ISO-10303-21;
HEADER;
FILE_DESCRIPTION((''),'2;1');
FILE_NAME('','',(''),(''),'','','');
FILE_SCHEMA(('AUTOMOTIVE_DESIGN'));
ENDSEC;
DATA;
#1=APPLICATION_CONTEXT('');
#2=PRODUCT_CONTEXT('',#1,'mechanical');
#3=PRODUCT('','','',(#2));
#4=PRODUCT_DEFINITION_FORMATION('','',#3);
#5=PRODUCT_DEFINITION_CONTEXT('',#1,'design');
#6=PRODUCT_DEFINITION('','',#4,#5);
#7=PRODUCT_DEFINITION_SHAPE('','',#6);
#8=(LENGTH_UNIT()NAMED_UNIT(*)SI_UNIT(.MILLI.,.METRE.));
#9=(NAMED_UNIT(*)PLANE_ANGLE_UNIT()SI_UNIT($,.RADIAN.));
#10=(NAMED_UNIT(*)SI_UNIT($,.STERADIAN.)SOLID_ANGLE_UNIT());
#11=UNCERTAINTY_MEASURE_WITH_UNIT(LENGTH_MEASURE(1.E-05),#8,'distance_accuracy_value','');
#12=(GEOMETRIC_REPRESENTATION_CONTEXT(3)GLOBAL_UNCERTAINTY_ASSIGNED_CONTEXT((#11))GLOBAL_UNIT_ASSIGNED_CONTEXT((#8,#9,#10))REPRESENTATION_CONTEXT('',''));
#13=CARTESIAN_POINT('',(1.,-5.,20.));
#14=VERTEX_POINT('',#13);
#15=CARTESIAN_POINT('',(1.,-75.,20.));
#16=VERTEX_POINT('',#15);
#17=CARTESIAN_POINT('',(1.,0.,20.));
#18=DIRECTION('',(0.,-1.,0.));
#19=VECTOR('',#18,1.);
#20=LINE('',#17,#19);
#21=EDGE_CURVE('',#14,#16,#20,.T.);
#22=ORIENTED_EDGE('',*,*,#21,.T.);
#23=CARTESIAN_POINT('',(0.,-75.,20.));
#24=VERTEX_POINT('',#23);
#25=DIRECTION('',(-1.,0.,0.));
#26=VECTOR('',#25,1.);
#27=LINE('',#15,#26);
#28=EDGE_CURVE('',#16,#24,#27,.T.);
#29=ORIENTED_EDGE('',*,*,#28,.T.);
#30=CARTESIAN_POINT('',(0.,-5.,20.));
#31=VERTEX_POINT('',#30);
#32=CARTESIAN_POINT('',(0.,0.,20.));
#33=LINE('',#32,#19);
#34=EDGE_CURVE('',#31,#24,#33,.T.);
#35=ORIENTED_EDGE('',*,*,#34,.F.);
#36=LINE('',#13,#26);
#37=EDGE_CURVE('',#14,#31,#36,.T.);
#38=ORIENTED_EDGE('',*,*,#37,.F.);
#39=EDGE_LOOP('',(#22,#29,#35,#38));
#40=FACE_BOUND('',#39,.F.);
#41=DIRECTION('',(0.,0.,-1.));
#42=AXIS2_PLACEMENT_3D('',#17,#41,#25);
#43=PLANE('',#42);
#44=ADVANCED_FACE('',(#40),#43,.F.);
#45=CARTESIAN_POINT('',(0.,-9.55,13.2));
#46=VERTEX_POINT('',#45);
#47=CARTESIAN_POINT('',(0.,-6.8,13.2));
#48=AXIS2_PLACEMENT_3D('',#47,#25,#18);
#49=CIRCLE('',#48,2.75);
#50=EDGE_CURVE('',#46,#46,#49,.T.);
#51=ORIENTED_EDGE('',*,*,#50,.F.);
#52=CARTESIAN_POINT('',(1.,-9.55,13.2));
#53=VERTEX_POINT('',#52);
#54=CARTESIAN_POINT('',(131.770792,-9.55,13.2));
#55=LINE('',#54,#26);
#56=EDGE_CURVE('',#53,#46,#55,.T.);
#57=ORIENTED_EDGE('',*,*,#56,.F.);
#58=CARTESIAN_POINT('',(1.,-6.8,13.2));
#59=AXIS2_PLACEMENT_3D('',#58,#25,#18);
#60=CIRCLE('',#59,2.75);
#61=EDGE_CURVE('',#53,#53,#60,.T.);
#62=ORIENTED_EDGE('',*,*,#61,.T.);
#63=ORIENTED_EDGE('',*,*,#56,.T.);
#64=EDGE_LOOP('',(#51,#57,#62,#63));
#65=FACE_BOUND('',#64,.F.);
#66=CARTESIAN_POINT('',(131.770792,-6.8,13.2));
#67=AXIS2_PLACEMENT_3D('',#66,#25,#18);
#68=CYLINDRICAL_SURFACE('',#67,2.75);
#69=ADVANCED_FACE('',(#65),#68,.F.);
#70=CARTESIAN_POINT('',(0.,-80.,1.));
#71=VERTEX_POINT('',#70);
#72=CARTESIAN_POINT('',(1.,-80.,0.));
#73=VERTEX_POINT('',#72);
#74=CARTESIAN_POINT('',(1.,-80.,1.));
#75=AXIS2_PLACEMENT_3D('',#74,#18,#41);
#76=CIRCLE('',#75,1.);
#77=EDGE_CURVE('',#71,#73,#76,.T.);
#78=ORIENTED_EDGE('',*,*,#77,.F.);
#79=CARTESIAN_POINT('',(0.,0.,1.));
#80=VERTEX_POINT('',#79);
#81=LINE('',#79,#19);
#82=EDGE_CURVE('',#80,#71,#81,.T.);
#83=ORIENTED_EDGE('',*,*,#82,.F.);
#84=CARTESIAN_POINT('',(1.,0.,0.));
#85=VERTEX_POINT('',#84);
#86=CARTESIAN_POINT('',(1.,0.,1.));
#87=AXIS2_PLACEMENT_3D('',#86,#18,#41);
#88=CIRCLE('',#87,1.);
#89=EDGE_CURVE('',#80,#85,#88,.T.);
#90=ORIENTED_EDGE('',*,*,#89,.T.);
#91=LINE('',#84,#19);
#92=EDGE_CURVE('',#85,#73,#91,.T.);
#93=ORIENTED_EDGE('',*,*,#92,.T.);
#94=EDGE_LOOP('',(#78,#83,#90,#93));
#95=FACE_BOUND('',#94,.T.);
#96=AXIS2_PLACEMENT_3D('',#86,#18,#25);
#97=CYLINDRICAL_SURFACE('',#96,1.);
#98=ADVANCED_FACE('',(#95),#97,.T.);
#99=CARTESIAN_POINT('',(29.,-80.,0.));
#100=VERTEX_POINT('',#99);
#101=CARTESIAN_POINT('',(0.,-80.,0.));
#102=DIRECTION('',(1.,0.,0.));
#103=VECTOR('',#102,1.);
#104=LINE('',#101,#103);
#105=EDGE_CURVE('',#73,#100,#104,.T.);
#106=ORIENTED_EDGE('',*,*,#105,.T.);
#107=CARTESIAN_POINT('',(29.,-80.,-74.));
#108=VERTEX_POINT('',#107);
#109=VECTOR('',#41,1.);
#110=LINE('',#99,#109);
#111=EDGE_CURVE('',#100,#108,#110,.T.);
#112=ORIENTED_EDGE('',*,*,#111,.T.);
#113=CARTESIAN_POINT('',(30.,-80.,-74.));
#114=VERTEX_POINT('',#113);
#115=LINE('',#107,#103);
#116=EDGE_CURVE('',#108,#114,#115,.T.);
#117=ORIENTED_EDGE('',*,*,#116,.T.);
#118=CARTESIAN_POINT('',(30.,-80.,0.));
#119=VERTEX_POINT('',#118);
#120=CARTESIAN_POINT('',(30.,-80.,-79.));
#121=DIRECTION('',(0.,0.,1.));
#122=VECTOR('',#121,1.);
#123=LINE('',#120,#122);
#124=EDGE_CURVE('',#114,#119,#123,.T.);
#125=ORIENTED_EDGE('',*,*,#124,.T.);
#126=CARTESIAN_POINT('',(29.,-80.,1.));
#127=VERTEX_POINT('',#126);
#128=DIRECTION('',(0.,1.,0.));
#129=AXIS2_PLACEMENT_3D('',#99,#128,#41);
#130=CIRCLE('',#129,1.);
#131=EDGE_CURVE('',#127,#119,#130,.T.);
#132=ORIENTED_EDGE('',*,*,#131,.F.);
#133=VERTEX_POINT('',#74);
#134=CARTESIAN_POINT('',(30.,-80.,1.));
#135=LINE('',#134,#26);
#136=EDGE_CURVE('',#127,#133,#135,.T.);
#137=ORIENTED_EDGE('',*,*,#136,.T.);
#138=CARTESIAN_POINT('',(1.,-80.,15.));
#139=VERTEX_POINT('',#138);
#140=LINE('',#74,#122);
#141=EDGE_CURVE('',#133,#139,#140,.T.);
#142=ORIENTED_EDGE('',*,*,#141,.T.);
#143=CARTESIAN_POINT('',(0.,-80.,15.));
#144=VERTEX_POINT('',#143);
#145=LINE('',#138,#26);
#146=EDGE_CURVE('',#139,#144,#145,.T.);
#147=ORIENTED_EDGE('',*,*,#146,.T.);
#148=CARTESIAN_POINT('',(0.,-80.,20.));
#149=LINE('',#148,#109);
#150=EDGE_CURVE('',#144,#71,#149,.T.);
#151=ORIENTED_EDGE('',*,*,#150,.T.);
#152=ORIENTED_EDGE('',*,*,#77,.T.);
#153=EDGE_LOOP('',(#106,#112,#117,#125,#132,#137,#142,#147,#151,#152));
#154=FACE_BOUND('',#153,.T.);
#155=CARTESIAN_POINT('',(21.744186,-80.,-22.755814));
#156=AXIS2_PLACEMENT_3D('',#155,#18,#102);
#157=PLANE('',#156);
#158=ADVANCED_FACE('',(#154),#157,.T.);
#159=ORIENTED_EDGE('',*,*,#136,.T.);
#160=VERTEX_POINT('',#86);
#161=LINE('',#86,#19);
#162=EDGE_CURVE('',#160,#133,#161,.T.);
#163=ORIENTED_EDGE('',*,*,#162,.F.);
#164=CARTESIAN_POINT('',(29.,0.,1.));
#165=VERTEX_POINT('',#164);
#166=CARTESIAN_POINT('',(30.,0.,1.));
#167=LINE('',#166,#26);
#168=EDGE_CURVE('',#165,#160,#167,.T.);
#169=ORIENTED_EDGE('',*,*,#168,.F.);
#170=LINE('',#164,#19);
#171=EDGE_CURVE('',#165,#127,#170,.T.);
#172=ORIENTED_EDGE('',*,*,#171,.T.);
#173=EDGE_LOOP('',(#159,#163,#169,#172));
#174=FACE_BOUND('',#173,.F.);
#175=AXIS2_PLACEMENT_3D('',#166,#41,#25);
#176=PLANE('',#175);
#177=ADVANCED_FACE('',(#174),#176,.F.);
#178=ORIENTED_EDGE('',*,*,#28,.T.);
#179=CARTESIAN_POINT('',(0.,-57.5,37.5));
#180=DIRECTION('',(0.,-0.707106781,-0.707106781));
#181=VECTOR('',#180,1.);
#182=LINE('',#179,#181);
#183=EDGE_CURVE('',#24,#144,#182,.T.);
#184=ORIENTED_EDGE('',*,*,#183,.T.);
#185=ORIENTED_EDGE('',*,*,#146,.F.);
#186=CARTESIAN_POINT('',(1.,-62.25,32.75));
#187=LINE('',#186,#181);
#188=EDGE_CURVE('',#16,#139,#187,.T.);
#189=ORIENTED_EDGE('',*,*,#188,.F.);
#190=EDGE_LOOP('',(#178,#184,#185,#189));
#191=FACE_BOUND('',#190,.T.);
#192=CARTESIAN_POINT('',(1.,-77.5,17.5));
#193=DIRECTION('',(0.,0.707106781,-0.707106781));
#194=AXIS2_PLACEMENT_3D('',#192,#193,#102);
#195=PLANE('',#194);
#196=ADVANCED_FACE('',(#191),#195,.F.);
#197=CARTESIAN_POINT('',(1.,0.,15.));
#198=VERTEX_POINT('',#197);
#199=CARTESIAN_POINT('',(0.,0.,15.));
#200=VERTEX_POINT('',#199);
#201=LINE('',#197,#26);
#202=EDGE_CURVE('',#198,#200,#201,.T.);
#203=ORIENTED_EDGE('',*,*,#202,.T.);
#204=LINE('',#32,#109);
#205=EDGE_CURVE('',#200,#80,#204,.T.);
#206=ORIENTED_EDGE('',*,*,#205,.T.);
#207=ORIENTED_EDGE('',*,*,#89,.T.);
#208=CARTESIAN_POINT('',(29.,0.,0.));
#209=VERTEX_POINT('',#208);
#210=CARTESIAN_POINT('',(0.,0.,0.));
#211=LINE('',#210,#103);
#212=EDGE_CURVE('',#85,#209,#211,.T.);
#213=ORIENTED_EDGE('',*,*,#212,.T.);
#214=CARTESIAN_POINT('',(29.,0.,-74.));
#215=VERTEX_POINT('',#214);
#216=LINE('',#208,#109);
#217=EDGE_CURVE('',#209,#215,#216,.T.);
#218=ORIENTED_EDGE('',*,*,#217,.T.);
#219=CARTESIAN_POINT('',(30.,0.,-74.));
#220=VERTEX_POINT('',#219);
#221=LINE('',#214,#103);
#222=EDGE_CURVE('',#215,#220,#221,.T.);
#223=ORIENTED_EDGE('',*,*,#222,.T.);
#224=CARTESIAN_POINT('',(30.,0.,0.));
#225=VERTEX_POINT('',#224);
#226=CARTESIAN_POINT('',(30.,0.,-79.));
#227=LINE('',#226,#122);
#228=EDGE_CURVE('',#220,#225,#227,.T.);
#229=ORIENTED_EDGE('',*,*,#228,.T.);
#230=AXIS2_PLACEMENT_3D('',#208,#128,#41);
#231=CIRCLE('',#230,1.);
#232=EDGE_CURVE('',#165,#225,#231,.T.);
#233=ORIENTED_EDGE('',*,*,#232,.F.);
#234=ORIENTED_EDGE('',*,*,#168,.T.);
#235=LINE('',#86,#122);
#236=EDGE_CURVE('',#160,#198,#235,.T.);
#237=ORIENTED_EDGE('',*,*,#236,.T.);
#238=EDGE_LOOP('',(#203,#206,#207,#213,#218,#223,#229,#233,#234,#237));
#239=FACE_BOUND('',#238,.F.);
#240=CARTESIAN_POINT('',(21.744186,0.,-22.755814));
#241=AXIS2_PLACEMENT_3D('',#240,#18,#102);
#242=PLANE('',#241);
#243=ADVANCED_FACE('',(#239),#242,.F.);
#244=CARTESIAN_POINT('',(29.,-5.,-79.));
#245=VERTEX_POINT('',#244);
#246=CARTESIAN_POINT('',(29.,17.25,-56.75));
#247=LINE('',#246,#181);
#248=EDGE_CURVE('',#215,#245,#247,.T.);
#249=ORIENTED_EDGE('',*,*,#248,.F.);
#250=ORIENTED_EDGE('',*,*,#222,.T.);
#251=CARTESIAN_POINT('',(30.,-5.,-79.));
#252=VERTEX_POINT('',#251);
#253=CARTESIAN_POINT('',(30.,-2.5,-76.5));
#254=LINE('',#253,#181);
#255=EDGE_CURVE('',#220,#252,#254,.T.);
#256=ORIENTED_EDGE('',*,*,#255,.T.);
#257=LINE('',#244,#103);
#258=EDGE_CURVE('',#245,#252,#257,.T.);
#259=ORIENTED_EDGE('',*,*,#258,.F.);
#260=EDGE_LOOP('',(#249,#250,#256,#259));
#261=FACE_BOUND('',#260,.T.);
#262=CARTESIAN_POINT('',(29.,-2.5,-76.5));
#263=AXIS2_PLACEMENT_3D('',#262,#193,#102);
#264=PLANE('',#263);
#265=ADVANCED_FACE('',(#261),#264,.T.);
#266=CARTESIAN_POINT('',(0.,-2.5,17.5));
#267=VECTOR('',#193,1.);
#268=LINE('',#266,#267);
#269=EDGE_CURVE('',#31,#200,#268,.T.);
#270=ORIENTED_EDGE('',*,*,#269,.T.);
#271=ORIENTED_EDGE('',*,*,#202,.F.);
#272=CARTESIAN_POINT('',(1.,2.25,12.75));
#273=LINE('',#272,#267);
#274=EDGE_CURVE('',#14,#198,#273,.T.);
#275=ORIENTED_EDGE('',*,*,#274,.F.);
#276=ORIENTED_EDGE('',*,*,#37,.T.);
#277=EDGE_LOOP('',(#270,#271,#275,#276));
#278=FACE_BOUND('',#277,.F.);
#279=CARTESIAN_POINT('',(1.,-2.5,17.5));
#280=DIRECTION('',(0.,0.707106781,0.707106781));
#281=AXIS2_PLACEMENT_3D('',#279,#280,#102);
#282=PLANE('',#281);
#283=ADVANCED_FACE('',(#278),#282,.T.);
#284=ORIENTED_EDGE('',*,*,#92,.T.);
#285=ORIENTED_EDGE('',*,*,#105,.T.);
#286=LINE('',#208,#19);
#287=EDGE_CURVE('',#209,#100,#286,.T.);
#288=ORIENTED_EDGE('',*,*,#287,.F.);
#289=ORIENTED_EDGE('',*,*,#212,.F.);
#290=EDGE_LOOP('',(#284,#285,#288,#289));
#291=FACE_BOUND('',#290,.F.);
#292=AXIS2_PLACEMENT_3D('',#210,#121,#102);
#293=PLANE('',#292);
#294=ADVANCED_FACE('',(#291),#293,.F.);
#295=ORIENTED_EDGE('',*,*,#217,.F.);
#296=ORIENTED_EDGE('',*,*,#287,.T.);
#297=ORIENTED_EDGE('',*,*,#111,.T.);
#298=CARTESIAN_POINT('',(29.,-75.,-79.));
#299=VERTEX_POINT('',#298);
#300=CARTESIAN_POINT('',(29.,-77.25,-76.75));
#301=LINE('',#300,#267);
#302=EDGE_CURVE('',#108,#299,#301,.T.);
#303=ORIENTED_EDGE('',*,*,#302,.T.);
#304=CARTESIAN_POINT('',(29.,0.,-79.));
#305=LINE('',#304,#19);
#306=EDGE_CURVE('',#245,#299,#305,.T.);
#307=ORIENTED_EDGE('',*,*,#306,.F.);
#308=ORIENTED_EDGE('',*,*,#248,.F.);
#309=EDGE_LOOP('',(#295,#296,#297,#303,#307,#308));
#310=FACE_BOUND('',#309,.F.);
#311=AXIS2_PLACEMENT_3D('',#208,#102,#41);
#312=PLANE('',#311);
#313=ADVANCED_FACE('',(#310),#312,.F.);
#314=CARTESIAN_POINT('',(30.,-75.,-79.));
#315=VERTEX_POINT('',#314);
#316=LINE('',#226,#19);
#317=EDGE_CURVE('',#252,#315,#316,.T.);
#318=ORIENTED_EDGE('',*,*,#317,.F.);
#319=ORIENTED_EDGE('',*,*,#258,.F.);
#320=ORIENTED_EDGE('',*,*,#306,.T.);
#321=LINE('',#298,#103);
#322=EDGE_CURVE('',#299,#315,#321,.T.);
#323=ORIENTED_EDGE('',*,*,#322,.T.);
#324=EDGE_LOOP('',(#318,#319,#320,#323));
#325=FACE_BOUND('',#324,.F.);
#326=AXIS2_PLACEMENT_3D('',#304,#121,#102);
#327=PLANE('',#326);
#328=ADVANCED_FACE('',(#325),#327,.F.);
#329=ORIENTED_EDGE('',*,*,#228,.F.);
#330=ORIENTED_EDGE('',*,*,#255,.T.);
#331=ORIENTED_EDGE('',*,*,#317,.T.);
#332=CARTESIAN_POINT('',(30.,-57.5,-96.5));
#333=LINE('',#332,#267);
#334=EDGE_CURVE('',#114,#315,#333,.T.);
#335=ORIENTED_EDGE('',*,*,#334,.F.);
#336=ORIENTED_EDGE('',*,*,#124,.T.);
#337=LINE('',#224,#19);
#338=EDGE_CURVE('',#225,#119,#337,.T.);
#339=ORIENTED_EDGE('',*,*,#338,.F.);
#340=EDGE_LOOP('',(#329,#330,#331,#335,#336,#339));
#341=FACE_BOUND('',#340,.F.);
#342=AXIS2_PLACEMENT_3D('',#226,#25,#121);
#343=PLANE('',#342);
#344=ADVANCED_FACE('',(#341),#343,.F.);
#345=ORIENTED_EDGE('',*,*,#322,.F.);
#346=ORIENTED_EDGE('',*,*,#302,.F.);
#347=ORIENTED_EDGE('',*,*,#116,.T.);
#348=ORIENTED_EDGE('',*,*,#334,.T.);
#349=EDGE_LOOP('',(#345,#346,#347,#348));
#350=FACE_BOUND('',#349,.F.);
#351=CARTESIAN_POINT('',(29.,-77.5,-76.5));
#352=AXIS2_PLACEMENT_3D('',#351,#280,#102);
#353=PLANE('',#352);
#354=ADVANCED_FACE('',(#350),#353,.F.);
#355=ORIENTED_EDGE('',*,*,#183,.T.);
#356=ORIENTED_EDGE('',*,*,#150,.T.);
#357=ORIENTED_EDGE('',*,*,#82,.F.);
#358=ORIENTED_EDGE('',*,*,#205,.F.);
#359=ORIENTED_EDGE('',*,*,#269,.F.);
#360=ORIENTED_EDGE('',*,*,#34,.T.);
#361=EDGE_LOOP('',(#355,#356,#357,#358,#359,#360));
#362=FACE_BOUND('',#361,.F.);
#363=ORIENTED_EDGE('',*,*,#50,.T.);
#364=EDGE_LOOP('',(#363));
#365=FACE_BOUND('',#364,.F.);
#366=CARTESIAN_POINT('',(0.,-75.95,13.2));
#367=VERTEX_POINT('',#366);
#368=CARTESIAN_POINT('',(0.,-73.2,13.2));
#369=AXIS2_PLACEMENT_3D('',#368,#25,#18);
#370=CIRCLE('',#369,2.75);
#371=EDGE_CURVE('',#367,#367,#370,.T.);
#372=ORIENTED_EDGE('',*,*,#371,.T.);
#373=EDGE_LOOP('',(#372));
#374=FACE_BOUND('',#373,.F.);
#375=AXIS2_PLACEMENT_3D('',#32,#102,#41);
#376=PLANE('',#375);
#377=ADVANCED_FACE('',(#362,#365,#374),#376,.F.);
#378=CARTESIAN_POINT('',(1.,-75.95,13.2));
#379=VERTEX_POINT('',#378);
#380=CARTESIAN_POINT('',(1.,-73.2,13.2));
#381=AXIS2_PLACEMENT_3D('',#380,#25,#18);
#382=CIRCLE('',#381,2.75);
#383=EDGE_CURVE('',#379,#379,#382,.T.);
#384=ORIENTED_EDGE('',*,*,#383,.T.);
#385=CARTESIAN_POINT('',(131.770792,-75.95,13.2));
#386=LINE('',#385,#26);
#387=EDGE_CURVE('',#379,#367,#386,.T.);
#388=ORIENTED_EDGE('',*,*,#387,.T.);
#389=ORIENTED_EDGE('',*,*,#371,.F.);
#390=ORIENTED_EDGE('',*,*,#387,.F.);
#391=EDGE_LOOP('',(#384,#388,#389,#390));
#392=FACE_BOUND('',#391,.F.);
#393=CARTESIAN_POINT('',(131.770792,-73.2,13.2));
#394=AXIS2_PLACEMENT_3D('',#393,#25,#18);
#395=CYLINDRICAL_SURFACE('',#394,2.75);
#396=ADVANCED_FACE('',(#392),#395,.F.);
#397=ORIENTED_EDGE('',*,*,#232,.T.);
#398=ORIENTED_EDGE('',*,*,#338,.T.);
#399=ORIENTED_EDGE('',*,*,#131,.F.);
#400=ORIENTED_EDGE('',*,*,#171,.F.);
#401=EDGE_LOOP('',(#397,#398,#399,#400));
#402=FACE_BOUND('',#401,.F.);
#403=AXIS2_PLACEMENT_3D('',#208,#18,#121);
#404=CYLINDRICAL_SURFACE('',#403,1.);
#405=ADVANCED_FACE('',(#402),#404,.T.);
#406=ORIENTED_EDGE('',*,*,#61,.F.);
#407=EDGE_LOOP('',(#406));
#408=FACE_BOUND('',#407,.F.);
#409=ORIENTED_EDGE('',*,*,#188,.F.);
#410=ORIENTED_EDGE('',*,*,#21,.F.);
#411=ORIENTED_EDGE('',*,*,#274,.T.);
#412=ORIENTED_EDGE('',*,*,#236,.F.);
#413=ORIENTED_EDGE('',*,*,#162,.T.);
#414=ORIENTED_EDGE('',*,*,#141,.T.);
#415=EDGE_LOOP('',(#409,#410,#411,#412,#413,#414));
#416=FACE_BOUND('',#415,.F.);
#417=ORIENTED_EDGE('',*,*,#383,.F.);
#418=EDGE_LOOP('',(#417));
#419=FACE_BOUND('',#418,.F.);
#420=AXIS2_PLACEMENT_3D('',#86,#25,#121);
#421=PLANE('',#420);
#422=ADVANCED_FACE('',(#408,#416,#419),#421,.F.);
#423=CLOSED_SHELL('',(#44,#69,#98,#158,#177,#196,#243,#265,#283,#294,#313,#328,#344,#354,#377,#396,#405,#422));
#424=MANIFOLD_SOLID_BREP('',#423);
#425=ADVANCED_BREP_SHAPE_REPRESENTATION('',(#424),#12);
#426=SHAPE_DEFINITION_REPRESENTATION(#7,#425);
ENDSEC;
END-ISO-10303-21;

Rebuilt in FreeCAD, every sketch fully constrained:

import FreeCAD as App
import Part
import Sketcher


def edges_at(feature, points):
    """Names of the edges that pass closest to the given points."""
    edges = feature.Shape.Edges
    near = lambda p: min(range(len(edges)), key=lambda i: edges[i].distToShape(Part.Vertex(*p))[0])
    return sorted({f"Edge{near(p) + 1}" for p in points})


def add_polygon(sketch, points):
    """Adds a closed chain of lines whose ends are joined by coincident constraints."""
    first, n = sketch.GeometryCount, len(points)
    for a, b in zip(points, points[1:] + points[:1]):
        sketch.addGeometry(Part.LineSegment(App.Vector(*a, 0), App.Vector(*b, 0)), False)
    for i in range(n):
        sketch.addConstraint(Sketcher.Constraint("Coincident", first + i, 2, first + (i + 1) % n, 1))

doc = App.newDocument("Part")
params = doc.addObject("Spreadsheet::Sheet", "Params")
for row, (alias, value) in enumerate([
    ("sketch1_width", "29 mm"),
    ("sketch1_width2", "1 mm"),
    ("sketch1_height", "20 mm"),
    ("sketch1_height2", "79 mm"),
    ("sketch1_height3", "80 mm"),
    ("pad1_length", "80 mm"),
    ("sketch2_diameter", "5.5 mm"),
    ("hole_diameter", "5.5 mm"),
    ("chamfer_size", "5 mm"),
    ("fillet_radius", "1 mm"),
], start=1):
    params.set(f"A{row}", alias)
    params.set(f"B{row}", "=" + value)
    params.setAlias(f"B{row}", alias)

body = doc.addObject("PartDesign::Body", "Body")

# Sketch on XZ plane
sketch1 = body.newObject("Sketcher::SketchObject", "Sketch")
sketch1.AttachmentSupport = (doc.getObject("XZ_Plane"), [""])
sketch1.MapMode = "FlatFace"
add_polygon(sketch1, [(0, 20), (0, 0), (29, 0), (29, -79), (30, -79), (30, 1), (1, 1), (1, 20)])  # lines 0-7
sketch1.addConstraint([
    Sketcher.Constraint("Vertical", 0),
    Sketcher.Constraint("Horizontal", 1),
    Sketcher.Constraint("Vertical", 2),
    Sketcher.Constraint("Horizontal", 3),
    Sketcher.Constraint("Vertical", 4),
    Sketcher.Constraint("Horizontal", 5),
    Sketcher.Constraint("Vertical", 6),
    Sketcher.Constraint("Horizontal", 7),
    Sketcher.Constraint("Coincident", 0, 2, -1, 1),
    Sketcher.Constraint("Equal", 1, 5),
    Sketcher.Constraint("DistanceX", 1, 1, 1, 2, 29.0),
    Sketcher.Constraint("DistanceX", 3, 1, 3, 2, 1.0),
    Sketcher.Constraint("DistanceY", 0, 2, 0, 1, 20.0),
    Sketcher.Constraint("DistanceY", 2, 2, 2, 1, 79.0),
    Sketcher.Constraint("DistanceY", 4, 1, 4, 2, 80.0),
])
sketch1.setExpression("Constraints[18]", "Params.sketch1_width")
sketch1.setExpression("Constraints[19]", "Params.sketch1_width2")
sketch1.setExpression("Constraints[20]", "Params.sketch1_height")
sketch1.setExpression("Constraints[21]", "Params.sketch1_height2")
sketch1.setExpression("Constraints[22]", "Params.sketch1_height3")
pad1 = body.newObject("PartDesign::Pad", "Pad")
pad1.Profile = sketch1
pad1.setExpression("Length", "Params.pad1_length")

# Sketch on YZ plane
sketch2 = body.newObject("Sketcher::SketchObject", "Sketch001")
sketch2.AttachmentSupport = (doc.getObject("YZ_Plane"), [""])
sketch2.MapMode = "FlatFace"
sketch2.AttachmentOffset = App.Placement(App.Vector(0, 0, 1), App.Rotation())
sketch2.addGeometry([
    Part.Circle(App.Vector(-73.2, 13.2, 0), App.Vector(0, 0, 1), 2.8),
    Part.Circle(App.Vector(-6.8, 13.2, 0), App.Vector(0, 0, 1), 2.8),
], False)
sketch2.addConstraint([
    Sketcher.Constraint("Equal", 0, 1),
    Sketcher.Constraint("Horizontal", 0, 3, 1, 3),
    Sketcher.Constraint("Diameter", 0, 5.5),
    Sketcher.Constraint("DistanceX", 0, 3, -1, 1, 73.2),
    Sketcher.Constraint("DistanceY", -1, 1, 0, 3, 13.2),
    Sketcher.Constraint("DistanceX", 1, 3, -1, 1, 6.8),
])
sketch2.setExpression("Constraints[2]", "Params.sketch2_diameter")
doc.recompute()
hole = body.newObject("PartDesign::Hole", "Hole")
hole.Profile = sketch2
hole.ThreadType = "None"
hole.setExpression("Diameter", "Params.hole_diameter")
hole.DepthType = "ThroughAll"
doc.recompute()

chamfer = body.newObject("PartDesign::Chamfer", "Chamfer")
chamfer.Base = (hole, edges_at(hole, [
    (0.5, -80, 20),
    (0.5, 0, 20),
    (29.5, 0, -79),
    (29.5, -80, -79),
]))
chamfer.setExpression("Size", "Params.chamfer_size")
doc.recompute()

fillet = body.newObject("PartDesign::Fillet", "Fillet")
fillet.Base = (chamfer, edges_at(chamfer, [(30, -40, 1), (0, -40, 0)]))
fillet.setExpression("Radius", "Params.fillet_radius")

doc.recompute()
